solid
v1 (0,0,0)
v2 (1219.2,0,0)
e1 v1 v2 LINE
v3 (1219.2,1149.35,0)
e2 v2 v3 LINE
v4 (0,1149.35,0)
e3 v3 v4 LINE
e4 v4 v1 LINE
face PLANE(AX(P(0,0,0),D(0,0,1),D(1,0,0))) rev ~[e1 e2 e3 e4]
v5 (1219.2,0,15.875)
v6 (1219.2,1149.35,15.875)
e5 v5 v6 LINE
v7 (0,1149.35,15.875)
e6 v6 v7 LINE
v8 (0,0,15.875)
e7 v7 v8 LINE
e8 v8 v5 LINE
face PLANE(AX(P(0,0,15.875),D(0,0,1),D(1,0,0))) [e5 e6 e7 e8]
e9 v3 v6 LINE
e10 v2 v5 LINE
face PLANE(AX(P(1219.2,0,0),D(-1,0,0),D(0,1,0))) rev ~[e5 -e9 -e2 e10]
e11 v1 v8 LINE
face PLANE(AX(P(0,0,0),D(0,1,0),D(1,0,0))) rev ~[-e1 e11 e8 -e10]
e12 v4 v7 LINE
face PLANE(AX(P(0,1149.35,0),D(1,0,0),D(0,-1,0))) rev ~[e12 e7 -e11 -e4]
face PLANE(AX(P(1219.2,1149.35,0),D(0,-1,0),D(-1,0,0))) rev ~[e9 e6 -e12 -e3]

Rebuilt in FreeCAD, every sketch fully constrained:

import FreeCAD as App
import Part
import Sketcher
from FreeCAD import Vector
Q = App.Units.Quantity

doc = App.newDocument("Part")
body = doc.addObject("PartDesign::Body", "Body")

# Sketch on XY plane
sketch1 = body.newObject("Sketcher::SketchObject", "Sketch")
sketch1.AttachmentSupport = (doc.getObject("XY_Plane"), [""])
sketch1.MapMode = "FlatFace"
sketch1.addGeometry([
    Part.LineSegment(Vector(0, 1149, 0), Vector(0, 0, 0)),
    Part.LineSegment(Vector(0, 0, 0), Vector(1219, 0, 0)),
    Part.LineSegment(Vector(1219, 0, 0), Vector(1219, 1149, 0)),
    Part.LineSegment(Vector(1219, 1149, 0), Vector(0, 1149, 0)),
], False)
sketch1.addConstraint([
    Sketcher.Constraint("Coincident", 0, 2, 1, 1),
    Sketcher.Constraint("Coincident", 1, 2, 2, 1),
    Sketcher.Constraint("Coincident", 2, 2, 3, 1),
    Sketcher.Constraint("Coincident", 3, 2, 0, 1),
    Sketcher.Constraint("Vertical", 0),
    Sketcher.Constraint("Horizontal", 1),
    Sketcher.Constraint("Vertical", 2),
    Sketcher.Constraint("Horizontal", 3),
    Sketcher.Constraint("Coincident", 0, 2, -1, 1),
    Sketcher.Constraint("DistanceX", 1, 1, 1, 2, Q("48 in")),
    Sketcher.Constraint("DistanceY", 0, 2, 0, 1, Q("45.25 in")),
])
pad1 = body.newObject("PartDesign::Pad", "Pad")
pad1.Profile = sketch1
pad1.Length = Q("0.625 in")

doc.recompute()
